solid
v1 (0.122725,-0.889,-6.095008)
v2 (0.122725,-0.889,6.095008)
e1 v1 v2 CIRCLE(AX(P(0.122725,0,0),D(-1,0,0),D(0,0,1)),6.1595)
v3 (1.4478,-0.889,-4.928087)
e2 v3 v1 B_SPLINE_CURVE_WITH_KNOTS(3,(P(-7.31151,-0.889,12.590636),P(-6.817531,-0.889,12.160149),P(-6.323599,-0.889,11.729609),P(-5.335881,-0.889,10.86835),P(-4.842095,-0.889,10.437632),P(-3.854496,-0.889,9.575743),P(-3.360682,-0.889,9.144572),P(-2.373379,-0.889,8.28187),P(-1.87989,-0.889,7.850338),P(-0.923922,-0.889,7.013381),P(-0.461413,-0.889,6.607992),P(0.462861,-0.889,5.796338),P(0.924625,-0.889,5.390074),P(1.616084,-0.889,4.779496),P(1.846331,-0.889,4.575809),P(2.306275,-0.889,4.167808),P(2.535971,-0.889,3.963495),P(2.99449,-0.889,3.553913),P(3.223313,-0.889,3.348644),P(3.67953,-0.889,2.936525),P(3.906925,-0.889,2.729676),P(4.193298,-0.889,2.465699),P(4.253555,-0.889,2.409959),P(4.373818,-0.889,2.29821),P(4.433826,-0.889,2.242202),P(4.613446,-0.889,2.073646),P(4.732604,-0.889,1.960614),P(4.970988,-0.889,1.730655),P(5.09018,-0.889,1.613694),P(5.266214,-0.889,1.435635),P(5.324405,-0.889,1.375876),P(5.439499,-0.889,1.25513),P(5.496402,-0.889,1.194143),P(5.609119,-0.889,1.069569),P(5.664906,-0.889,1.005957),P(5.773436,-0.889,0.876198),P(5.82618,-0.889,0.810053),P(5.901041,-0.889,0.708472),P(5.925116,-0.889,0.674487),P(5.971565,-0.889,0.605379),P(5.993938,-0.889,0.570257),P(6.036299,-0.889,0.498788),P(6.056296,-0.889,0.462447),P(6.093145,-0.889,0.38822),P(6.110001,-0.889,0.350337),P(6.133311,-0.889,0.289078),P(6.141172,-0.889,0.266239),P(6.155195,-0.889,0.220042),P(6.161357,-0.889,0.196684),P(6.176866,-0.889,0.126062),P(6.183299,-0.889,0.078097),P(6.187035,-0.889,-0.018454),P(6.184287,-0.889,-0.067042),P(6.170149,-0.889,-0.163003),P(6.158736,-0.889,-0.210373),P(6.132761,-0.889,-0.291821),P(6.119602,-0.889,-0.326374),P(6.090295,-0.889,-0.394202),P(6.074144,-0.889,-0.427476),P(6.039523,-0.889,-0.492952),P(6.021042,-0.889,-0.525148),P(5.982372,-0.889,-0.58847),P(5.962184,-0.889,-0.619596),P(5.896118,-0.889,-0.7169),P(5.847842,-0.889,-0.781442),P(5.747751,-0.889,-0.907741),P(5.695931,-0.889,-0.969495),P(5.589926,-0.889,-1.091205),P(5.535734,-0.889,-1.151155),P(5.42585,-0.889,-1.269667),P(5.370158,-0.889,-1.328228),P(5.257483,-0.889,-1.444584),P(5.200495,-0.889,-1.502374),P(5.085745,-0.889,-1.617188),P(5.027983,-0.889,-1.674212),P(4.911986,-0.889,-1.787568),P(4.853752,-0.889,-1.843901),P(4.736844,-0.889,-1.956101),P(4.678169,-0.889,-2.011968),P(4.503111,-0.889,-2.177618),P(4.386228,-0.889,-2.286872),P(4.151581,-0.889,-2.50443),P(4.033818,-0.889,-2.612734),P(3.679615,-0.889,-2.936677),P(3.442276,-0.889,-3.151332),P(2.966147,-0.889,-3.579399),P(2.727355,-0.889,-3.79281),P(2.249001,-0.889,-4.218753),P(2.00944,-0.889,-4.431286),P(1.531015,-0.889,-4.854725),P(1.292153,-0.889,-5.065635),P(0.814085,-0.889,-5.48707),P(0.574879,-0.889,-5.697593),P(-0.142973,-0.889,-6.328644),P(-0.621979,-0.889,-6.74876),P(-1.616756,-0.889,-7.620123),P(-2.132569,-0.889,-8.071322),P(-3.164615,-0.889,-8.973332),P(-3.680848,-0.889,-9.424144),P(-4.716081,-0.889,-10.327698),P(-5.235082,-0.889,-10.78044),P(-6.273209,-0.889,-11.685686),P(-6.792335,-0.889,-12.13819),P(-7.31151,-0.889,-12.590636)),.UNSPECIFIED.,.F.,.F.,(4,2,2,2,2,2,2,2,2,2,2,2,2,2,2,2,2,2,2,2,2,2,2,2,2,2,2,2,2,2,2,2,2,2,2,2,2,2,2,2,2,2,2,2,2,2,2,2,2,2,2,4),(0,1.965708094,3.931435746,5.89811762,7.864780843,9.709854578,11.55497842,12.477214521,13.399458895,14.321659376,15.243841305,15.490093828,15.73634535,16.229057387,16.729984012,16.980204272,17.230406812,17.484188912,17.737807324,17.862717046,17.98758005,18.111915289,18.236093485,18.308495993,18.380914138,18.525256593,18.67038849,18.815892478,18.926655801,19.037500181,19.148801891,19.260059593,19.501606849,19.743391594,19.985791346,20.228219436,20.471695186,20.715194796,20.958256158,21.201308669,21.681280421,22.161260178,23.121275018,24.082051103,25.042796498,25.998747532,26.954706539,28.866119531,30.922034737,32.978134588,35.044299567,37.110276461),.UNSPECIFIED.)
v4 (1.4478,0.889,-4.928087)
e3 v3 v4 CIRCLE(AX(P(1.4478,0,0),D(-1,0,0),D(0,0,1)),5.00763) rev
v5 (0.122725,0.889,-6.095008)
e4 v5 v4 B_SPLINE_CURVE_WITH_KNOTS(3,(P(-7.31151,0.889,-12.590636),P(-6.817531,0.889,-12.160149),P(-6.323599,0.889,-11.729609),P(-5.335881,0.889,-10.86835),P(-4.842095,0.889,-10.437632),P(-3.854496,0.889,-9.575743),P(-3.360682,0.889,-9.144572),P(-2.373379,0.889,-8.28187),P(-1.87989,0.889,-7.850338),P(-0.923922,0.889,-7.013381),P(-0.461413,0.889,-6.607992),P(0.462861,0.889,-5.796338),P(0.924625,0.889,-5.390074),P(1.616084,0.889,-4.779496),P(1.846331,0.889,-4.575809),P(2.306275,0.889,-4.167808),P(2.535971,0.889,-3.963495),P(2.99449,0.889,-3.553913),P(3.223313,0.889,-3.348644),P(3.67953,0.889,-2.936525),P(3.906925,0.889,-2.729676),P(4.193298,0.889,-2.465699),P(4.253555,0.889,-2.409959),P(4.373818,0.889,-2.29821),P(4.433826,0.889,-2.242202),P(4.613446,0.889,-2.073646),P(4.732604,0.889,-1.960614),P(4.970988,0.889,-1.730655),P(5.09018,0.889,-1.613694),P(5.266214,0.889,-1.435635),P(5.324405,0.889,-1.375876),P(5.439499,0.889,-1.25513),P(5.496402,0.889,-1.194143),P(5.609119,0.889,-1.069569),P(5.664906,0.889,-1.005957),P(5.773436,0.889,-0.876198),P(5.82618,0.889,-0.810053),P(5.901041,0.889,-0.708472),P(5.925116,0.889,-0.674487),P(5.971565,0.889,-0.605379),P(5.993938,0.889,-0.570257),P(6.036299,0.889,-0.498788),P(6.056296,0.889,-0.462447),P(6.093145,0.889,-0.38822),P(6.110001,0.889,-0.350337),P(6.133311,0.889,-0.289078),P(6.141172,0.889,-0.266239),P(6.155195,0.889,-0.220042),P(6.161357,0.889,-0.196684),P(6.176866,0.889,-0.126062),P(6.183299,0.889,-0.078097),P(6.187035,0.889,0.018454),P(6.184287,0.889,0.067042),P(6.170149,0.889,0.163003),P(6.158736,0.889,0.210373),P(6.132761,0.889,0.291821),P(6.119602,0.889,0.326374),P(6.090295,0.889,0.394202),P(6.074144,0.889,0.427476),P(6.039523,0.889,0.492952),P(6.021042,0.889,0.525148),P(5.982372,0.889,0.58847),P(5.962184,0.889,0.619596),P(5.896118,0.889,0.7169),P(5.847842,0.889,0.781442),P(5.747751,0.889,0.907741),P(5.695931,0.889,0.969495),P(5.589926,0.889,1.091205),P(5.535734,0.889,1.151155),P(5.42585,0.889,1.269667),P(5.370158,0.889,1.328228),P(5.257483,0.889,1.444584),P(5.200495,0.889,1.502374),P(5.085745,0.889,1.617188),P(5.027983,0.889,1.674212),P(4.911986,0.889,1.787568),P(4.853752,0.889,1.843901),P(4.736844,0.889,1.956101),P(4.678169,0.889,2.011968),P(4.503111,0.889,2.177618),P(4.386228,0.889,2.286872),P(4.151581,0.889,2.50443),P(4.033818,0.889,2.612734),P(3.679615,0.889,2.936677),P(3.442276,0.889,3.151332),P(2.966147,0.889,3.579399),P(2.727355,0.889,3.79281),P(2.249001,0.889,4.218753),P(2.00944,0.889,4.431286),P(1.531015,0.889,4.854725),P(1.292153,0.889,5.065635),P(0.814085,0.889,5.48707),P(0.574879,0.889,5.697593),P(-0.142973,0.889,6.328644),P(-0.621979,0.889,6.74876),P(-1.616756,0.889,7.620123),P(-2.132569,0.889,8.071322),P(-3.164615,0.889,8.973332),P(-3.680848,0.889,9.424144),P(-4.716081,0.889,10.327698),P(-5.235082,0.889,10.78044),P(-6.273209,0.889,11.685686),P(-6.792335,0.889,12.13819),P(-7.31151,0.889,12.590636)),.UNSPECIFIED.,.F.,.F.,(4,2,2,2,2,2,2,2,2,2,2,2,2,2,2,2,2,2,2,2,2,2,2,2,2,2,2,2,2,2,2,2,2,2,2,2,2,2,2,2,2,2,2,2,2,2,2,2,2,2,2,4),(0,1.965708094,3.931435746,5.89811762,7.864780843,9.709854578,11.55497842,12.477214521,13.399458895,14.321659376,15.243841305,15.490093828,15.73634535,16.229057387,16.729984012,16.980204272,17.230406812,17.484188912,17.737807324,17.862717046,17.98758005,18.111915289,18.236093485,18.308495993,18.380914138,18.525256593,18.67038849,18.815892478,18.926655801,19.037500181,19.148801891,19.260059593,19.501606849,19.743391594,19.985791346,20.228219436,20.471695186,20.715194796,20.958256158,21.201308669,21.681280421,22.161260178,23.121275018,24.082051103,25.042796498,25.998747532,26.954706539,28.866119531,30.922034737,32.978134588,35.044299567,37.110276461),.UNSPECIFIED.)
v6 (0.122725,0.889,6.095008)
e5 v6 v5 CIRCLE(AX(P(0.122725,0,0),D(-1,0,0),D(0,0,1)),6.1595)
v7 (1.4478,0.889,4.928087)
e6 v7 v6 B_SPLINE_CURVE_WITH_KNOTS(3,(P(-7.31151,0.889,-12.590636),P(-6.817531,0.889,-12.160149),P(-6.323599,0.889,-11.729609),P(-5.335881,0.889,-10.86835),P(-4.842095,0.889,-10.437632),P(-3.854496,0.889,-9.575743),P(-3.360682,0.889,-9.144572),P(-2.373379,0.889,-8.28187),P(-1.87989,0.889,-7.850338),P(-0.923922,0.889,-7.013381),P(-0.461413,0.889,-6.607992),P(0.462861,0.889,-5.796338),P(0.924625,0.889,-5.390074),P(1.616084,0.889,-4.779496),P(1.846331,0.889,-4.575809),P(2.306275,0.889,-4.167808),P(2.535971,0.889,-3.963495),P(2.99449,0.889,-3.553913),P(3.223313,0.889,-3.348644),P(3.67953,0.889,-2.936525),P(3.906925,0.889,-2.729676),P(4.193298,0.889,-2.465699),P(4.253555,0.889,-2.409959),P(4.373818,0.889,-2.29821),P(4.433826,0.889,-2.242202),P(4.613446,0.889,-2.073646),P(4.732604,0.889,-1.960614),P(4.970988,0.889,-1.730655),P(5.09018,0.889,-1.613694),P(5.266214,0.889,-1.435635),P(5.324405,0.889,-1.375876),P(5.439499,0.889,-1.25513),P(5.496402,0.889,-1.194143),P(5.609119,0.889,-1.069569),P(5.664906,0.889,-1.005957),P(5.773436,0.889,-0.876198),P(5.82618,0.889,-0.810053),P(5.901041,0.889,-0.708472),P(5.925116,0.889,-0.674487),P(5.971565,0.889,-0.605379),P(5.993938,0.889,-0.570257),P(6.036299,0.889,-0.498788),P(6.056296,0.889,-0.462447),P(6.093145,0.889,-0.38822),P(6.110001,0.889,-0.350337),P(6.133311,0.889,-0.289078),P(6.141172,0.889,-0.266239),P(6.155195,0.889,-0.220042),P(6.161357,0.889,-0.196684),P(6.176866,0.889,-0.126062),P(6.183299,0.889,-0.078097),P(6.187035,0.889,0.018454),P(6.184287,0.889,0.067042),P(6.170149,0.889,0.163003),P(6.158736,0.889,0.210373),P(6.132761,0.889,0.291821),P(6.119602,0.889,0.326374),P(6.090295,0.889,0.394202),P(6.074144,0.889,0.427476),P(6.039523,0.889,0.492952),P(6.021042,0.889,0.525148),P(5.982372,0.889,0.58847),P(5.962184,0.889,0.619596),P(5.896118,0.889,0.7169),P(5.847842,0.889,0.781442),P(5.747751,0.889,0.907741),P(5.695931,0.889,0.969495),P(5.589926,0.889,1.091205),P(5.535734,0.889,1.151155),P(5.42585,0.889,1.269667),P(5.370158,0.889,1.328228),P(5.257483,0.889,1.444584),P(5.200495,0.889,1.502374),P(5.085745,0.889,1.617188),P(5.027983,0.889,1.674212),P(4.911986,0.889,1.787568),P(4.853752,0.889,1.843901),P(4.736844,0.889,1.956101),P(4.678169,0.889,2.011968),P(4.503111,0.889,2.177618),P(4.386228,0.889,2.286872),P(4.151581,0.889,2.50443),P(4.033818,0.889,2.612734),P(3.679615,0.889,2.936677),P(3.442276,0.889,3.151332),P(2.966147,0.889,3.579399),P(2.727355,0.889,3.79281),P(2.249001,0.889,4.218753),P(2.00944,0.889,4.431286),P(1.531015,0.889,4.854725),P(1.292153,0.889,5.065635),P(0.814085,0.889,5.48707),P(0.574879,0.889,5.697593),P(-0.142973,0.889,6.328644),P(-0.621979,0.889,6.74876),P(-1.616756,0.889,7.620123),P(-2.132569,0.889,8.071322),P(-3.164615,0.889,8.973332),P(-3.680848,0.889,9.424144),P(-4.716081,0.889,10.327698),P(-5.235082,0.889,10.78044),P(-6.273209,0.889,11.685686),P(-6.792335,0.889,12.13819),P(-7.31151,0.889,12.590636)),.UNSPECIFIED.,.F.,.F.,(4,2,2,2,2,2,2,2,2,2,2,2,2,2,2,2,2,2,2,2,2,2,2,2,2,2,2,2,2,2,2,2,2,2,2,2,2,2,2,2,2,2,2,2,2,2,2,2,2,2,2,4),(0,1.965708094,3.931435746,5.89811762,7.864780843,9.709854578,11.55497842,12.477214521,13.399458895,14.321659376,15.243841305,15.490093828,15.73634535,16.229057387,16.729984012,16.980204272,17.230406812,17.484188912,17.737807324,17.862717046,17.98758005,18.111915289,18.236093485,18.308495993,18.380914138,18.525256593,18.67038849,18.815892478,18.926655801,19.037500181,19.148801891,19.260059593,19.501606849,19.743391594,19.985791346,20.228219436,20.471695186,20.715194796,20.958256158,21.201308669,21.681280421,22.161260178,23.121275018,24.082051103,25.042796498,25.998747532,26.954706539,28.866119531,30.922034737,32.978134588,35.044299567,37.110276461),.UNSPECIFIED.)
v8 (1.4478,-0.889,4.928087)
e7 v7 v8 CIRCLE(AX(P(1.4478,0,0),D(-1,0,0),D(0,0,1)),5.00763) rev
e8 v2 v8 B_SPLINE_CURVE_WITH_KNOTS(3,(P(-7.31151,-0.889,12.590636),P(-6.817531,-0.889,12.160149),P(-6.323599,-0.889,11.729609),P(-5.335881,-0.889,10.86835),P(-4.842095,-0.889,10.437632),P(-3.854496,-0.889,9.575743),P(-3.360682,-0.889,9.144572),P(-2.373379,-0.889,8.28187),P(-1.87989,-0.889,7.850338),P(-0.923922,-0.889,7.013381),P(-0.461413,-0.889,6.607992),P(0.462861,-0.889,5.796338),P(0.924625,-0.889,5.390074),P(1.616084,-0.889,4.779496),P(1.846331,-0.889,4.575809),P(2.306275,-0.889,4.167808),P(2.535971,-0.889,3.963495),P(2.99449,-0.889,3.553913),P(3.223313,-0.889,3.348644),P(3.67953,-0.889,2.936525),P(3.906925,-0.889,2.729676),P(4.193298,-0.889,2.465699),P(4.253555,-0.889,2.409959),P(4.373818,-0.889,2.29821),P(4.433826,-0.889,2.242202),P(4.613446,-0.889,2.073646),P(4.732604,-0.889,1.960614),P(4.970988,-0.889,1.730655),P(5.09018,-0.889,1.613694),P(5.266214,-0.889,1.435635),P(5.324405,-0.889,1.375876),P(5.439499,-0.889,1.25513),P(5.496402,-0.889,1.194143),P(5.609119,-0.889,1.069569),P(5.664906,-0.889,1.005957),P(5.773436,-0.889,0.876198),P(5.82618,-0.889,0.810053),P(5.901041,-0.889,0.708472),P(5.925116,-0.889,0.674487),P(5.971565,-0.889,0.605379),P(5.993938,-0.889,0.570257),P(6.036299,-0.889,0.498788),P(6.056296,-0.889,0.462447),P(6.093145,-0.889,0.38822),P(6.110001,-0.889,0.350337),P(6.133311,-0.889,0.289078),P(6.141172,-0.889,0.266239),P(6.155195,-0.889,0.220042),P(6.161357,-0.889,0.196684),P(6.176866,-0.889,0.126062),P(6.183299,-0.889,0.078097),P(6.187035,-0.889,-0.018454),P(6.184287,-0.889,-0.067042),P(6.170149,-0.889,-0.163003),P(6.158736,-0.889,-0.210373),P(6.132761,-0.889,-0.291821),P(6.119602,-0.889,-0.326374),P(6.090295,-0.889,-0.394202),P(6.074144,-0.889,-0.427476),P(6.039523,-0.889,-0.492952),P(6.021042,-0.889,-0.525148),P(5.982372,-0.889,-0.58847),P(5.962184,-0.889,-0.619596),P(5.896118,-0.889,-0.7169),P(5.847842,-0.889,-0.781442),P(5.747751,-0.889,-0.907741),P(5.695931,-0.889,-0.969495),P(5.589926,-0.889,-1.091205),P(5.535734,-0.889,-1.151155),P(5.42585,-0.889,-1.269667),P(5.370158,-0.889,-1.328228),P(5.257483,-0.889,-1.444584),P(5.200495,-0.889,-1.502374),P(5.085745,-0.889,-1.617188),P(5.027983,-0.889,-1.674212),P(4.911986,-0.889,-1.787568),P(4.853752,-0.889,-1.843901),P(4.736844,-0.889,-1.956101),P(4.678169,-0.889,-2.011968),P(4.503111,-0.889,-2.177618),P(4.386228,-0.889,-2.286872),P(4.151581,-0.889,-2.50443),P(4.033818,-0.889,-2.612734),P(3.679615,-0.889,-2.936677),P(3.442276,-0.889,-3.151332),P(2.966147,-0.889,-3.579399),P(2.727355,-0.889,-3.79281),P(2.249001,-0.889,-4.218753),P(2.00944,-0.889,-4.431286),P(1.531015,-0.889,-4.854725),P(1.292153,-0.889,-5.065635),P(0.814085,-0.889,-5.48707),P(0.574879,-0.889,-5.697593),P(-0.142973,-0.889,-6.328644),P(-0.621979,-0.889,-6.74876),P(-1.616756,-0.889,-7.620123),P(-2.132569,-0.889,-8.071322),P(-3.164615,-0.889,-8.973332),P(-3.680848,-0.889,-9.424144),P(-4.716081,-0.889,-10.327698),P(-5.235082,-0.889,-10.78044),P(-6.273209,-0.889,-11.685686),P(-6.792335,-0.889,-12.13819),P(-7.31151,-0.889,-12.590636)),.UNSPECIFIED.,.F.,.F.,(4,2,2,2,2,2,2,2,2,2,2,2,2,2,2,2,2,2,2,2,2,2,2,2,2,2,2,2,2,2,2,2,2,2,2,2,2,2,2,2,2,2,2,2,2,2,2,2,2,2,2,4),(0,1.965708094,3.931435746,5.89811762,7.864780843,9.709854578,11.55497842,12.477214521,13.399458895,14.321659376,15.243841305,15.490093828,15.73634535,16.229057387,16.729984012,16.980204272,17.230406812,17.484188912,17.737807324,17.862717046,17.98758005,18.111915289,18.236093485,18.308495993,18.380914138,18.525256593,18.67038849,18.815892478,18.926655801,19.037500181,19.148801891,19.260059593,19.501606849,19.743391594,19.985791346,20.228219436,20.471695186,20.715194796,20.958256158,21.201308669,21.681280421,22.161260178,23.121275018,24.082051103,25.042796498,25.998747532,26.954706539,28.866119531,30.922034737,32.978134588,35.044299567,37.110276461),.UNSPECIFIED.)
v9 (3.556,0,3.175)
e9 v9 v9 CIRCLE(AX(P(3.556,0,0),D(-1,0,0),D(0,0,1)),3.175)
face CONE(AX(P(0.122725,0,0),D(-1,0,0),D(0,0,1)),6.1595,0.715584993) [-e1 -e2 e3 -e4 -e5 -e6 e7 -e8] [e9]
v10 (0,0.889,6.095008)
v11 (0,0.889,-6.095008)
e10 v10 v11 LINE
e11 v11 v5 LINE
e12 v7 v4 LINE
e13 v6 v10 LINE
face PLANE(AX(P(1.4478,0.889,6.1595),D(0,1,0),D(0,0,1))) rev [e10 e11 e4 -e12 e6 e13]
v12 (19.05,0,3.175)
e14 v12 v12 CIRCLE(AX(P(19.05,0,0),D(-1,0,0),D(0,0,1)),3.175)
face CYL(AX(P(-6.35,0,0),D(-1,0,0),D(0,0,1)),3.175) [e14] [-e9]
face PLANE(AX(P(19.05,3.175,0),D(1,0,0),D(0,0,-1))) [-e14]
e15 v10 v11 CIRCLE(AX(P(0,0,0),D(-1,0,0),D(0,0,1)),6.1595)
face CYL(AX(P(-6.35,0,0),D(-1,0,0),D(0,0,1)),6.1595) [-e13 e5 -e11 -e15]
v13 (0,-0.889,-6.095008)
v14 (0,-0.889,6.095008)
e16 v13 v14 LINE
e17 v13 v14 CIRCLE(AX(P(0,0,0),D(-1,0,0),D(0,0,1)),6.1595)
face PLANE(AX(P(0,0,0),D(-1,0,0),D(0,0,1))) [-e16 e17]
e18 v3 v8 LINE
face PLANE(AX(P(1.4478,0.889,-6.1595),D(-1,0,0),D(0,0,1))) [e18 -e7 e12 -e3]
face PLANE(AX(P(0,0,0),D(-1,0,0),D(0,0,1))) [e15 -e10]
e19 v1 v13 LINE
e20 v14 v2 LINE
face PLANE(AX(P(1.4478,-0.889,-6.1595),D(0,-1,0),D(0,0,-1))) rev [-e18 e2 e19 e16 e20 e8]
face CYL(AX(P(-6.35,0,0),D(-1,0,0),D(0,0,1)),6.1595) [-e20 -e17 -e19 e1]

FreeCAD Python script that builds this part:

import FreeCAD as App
import Part
import Sketcher
from FreeCAD import Vector
Q = App.Units.Quantity


def add_polygon(sketch, points):
    """Adds a closed chain of lines whose ends are joined by coincident constraints."""
    first, n = sketch.GeometryCount, len(points)
    for a, b in zip(points, points[1:] + points[:1]):
        sketch.addGeometry(Part.LineSegment(App.Vector(*a, 0), App.Vector(*b, 0)), False)
    for i in range(n):
        sketch.addConstraint(Sketcher.Constraint("Coincident", first + i, 2, first + (i + 1) % n, 1))

doc = App.newDocument("Part")
body = doc.addObject("PartDesign::Body", "Body")

sketch1 = body.newObject("Sketcher::SketchObject", "Sketch")
sketch1.AttachmentSupport = (doc.getObject("XY_Plane"), [""])
sketch1.MapMode = "FlatFace"
add_polygon(sketch1, [(0, 6.1595), (0, 0), (19.05, 0), (19.05, 3.175), (3.556, 3.175), (0.122725, 6.1595)])
sketch1.addConstraint(Sketcher.Constraint("Vertical", 0))
sketch1.addConstraint(Sketcher.Constraint("Horizontal", 1))
sketch1.addConstraint(Sketcher.Constraint("Vertical", 2))
sketch1.addConstraint(Sketcher.Constraint("Horizontal", 3))
sketch1.addConstraint(Sketcher.Constraint("Horizontal", 5))
sketch1.addConstraint(Sketcher.Constraint("Coincident", 0, 2, -1, 1))
sketch1.addConstraint(Sketcher.Constraint("Angle", 4, Q("139 deg")))
sketch1.addConstraint(Sketcher.Constraint("DistanceX", 1, 1, 1, 2, Q("0.75 in")))
sketch1.addConstraint(Sketcher.Constraint("DistanceX", 3, 2, 3, 1, Q("0.61 in")))
sketch1.addConstraint(Sketcher.Constraint("DistanceY", 2, 1, 2, 2, Q("0.125 in")))
sketch1.addConstraint(Sketcher.Constraint("DistanceY", 0, 2, 0, 1, Q("0.2425 in")))
revolution = body.newObject("PartDesign::Revolution", "Revolution")
revolution.Profile = sketch1
revolution.ReferenceAxis = (sketch1, ["H_Axis"])
revolution.Angle = 360

sketch2 = body.newObject("Sketcher::SketchObject", "Sketch001")
sketch2.AttachmentSupport = (doc.getObject("YZ_Plane"), [""])
sketch2.MapMode = "FlatFace"
add_polygon(sketch2, [(0.889, -6.1595), (-0.889, -6.1595), (-0.889, 6.1595), (0.889, 6.1595)])
sketch2.addConstraint(Sketcher.Constraint("Horizontal", 0))
sketch2.addConstraint(Sketcher.Constraint("Vertical", 1))
sketch2.addConstraint(Sketcher.Constraint("Horizontal", 2))
sketch2.addConstraint(Sketcher.Constraint("Vertical", 3))
sketch2.addConstraint(Sketcher.Constraint("Symmetric", 0, 2, 2, 2, -1, 1))
sketch2.addConstraint(Sketcher.Constraint("DistanceX", 0, 2, 0, 1, Q("0.07 in")))
sketch2.addConstraint(Sketcher.Constraint("DistanceY", 1, 1, 1, 2, Q("0.485 in")))
pocket1 = body.newObject("PartDesign::Pocket", "Pocket")
pocket1.Profile = sketch2
pocket1.Length = Q("0.057 in")
pocket1.Reversed = True

doc.recompute()
